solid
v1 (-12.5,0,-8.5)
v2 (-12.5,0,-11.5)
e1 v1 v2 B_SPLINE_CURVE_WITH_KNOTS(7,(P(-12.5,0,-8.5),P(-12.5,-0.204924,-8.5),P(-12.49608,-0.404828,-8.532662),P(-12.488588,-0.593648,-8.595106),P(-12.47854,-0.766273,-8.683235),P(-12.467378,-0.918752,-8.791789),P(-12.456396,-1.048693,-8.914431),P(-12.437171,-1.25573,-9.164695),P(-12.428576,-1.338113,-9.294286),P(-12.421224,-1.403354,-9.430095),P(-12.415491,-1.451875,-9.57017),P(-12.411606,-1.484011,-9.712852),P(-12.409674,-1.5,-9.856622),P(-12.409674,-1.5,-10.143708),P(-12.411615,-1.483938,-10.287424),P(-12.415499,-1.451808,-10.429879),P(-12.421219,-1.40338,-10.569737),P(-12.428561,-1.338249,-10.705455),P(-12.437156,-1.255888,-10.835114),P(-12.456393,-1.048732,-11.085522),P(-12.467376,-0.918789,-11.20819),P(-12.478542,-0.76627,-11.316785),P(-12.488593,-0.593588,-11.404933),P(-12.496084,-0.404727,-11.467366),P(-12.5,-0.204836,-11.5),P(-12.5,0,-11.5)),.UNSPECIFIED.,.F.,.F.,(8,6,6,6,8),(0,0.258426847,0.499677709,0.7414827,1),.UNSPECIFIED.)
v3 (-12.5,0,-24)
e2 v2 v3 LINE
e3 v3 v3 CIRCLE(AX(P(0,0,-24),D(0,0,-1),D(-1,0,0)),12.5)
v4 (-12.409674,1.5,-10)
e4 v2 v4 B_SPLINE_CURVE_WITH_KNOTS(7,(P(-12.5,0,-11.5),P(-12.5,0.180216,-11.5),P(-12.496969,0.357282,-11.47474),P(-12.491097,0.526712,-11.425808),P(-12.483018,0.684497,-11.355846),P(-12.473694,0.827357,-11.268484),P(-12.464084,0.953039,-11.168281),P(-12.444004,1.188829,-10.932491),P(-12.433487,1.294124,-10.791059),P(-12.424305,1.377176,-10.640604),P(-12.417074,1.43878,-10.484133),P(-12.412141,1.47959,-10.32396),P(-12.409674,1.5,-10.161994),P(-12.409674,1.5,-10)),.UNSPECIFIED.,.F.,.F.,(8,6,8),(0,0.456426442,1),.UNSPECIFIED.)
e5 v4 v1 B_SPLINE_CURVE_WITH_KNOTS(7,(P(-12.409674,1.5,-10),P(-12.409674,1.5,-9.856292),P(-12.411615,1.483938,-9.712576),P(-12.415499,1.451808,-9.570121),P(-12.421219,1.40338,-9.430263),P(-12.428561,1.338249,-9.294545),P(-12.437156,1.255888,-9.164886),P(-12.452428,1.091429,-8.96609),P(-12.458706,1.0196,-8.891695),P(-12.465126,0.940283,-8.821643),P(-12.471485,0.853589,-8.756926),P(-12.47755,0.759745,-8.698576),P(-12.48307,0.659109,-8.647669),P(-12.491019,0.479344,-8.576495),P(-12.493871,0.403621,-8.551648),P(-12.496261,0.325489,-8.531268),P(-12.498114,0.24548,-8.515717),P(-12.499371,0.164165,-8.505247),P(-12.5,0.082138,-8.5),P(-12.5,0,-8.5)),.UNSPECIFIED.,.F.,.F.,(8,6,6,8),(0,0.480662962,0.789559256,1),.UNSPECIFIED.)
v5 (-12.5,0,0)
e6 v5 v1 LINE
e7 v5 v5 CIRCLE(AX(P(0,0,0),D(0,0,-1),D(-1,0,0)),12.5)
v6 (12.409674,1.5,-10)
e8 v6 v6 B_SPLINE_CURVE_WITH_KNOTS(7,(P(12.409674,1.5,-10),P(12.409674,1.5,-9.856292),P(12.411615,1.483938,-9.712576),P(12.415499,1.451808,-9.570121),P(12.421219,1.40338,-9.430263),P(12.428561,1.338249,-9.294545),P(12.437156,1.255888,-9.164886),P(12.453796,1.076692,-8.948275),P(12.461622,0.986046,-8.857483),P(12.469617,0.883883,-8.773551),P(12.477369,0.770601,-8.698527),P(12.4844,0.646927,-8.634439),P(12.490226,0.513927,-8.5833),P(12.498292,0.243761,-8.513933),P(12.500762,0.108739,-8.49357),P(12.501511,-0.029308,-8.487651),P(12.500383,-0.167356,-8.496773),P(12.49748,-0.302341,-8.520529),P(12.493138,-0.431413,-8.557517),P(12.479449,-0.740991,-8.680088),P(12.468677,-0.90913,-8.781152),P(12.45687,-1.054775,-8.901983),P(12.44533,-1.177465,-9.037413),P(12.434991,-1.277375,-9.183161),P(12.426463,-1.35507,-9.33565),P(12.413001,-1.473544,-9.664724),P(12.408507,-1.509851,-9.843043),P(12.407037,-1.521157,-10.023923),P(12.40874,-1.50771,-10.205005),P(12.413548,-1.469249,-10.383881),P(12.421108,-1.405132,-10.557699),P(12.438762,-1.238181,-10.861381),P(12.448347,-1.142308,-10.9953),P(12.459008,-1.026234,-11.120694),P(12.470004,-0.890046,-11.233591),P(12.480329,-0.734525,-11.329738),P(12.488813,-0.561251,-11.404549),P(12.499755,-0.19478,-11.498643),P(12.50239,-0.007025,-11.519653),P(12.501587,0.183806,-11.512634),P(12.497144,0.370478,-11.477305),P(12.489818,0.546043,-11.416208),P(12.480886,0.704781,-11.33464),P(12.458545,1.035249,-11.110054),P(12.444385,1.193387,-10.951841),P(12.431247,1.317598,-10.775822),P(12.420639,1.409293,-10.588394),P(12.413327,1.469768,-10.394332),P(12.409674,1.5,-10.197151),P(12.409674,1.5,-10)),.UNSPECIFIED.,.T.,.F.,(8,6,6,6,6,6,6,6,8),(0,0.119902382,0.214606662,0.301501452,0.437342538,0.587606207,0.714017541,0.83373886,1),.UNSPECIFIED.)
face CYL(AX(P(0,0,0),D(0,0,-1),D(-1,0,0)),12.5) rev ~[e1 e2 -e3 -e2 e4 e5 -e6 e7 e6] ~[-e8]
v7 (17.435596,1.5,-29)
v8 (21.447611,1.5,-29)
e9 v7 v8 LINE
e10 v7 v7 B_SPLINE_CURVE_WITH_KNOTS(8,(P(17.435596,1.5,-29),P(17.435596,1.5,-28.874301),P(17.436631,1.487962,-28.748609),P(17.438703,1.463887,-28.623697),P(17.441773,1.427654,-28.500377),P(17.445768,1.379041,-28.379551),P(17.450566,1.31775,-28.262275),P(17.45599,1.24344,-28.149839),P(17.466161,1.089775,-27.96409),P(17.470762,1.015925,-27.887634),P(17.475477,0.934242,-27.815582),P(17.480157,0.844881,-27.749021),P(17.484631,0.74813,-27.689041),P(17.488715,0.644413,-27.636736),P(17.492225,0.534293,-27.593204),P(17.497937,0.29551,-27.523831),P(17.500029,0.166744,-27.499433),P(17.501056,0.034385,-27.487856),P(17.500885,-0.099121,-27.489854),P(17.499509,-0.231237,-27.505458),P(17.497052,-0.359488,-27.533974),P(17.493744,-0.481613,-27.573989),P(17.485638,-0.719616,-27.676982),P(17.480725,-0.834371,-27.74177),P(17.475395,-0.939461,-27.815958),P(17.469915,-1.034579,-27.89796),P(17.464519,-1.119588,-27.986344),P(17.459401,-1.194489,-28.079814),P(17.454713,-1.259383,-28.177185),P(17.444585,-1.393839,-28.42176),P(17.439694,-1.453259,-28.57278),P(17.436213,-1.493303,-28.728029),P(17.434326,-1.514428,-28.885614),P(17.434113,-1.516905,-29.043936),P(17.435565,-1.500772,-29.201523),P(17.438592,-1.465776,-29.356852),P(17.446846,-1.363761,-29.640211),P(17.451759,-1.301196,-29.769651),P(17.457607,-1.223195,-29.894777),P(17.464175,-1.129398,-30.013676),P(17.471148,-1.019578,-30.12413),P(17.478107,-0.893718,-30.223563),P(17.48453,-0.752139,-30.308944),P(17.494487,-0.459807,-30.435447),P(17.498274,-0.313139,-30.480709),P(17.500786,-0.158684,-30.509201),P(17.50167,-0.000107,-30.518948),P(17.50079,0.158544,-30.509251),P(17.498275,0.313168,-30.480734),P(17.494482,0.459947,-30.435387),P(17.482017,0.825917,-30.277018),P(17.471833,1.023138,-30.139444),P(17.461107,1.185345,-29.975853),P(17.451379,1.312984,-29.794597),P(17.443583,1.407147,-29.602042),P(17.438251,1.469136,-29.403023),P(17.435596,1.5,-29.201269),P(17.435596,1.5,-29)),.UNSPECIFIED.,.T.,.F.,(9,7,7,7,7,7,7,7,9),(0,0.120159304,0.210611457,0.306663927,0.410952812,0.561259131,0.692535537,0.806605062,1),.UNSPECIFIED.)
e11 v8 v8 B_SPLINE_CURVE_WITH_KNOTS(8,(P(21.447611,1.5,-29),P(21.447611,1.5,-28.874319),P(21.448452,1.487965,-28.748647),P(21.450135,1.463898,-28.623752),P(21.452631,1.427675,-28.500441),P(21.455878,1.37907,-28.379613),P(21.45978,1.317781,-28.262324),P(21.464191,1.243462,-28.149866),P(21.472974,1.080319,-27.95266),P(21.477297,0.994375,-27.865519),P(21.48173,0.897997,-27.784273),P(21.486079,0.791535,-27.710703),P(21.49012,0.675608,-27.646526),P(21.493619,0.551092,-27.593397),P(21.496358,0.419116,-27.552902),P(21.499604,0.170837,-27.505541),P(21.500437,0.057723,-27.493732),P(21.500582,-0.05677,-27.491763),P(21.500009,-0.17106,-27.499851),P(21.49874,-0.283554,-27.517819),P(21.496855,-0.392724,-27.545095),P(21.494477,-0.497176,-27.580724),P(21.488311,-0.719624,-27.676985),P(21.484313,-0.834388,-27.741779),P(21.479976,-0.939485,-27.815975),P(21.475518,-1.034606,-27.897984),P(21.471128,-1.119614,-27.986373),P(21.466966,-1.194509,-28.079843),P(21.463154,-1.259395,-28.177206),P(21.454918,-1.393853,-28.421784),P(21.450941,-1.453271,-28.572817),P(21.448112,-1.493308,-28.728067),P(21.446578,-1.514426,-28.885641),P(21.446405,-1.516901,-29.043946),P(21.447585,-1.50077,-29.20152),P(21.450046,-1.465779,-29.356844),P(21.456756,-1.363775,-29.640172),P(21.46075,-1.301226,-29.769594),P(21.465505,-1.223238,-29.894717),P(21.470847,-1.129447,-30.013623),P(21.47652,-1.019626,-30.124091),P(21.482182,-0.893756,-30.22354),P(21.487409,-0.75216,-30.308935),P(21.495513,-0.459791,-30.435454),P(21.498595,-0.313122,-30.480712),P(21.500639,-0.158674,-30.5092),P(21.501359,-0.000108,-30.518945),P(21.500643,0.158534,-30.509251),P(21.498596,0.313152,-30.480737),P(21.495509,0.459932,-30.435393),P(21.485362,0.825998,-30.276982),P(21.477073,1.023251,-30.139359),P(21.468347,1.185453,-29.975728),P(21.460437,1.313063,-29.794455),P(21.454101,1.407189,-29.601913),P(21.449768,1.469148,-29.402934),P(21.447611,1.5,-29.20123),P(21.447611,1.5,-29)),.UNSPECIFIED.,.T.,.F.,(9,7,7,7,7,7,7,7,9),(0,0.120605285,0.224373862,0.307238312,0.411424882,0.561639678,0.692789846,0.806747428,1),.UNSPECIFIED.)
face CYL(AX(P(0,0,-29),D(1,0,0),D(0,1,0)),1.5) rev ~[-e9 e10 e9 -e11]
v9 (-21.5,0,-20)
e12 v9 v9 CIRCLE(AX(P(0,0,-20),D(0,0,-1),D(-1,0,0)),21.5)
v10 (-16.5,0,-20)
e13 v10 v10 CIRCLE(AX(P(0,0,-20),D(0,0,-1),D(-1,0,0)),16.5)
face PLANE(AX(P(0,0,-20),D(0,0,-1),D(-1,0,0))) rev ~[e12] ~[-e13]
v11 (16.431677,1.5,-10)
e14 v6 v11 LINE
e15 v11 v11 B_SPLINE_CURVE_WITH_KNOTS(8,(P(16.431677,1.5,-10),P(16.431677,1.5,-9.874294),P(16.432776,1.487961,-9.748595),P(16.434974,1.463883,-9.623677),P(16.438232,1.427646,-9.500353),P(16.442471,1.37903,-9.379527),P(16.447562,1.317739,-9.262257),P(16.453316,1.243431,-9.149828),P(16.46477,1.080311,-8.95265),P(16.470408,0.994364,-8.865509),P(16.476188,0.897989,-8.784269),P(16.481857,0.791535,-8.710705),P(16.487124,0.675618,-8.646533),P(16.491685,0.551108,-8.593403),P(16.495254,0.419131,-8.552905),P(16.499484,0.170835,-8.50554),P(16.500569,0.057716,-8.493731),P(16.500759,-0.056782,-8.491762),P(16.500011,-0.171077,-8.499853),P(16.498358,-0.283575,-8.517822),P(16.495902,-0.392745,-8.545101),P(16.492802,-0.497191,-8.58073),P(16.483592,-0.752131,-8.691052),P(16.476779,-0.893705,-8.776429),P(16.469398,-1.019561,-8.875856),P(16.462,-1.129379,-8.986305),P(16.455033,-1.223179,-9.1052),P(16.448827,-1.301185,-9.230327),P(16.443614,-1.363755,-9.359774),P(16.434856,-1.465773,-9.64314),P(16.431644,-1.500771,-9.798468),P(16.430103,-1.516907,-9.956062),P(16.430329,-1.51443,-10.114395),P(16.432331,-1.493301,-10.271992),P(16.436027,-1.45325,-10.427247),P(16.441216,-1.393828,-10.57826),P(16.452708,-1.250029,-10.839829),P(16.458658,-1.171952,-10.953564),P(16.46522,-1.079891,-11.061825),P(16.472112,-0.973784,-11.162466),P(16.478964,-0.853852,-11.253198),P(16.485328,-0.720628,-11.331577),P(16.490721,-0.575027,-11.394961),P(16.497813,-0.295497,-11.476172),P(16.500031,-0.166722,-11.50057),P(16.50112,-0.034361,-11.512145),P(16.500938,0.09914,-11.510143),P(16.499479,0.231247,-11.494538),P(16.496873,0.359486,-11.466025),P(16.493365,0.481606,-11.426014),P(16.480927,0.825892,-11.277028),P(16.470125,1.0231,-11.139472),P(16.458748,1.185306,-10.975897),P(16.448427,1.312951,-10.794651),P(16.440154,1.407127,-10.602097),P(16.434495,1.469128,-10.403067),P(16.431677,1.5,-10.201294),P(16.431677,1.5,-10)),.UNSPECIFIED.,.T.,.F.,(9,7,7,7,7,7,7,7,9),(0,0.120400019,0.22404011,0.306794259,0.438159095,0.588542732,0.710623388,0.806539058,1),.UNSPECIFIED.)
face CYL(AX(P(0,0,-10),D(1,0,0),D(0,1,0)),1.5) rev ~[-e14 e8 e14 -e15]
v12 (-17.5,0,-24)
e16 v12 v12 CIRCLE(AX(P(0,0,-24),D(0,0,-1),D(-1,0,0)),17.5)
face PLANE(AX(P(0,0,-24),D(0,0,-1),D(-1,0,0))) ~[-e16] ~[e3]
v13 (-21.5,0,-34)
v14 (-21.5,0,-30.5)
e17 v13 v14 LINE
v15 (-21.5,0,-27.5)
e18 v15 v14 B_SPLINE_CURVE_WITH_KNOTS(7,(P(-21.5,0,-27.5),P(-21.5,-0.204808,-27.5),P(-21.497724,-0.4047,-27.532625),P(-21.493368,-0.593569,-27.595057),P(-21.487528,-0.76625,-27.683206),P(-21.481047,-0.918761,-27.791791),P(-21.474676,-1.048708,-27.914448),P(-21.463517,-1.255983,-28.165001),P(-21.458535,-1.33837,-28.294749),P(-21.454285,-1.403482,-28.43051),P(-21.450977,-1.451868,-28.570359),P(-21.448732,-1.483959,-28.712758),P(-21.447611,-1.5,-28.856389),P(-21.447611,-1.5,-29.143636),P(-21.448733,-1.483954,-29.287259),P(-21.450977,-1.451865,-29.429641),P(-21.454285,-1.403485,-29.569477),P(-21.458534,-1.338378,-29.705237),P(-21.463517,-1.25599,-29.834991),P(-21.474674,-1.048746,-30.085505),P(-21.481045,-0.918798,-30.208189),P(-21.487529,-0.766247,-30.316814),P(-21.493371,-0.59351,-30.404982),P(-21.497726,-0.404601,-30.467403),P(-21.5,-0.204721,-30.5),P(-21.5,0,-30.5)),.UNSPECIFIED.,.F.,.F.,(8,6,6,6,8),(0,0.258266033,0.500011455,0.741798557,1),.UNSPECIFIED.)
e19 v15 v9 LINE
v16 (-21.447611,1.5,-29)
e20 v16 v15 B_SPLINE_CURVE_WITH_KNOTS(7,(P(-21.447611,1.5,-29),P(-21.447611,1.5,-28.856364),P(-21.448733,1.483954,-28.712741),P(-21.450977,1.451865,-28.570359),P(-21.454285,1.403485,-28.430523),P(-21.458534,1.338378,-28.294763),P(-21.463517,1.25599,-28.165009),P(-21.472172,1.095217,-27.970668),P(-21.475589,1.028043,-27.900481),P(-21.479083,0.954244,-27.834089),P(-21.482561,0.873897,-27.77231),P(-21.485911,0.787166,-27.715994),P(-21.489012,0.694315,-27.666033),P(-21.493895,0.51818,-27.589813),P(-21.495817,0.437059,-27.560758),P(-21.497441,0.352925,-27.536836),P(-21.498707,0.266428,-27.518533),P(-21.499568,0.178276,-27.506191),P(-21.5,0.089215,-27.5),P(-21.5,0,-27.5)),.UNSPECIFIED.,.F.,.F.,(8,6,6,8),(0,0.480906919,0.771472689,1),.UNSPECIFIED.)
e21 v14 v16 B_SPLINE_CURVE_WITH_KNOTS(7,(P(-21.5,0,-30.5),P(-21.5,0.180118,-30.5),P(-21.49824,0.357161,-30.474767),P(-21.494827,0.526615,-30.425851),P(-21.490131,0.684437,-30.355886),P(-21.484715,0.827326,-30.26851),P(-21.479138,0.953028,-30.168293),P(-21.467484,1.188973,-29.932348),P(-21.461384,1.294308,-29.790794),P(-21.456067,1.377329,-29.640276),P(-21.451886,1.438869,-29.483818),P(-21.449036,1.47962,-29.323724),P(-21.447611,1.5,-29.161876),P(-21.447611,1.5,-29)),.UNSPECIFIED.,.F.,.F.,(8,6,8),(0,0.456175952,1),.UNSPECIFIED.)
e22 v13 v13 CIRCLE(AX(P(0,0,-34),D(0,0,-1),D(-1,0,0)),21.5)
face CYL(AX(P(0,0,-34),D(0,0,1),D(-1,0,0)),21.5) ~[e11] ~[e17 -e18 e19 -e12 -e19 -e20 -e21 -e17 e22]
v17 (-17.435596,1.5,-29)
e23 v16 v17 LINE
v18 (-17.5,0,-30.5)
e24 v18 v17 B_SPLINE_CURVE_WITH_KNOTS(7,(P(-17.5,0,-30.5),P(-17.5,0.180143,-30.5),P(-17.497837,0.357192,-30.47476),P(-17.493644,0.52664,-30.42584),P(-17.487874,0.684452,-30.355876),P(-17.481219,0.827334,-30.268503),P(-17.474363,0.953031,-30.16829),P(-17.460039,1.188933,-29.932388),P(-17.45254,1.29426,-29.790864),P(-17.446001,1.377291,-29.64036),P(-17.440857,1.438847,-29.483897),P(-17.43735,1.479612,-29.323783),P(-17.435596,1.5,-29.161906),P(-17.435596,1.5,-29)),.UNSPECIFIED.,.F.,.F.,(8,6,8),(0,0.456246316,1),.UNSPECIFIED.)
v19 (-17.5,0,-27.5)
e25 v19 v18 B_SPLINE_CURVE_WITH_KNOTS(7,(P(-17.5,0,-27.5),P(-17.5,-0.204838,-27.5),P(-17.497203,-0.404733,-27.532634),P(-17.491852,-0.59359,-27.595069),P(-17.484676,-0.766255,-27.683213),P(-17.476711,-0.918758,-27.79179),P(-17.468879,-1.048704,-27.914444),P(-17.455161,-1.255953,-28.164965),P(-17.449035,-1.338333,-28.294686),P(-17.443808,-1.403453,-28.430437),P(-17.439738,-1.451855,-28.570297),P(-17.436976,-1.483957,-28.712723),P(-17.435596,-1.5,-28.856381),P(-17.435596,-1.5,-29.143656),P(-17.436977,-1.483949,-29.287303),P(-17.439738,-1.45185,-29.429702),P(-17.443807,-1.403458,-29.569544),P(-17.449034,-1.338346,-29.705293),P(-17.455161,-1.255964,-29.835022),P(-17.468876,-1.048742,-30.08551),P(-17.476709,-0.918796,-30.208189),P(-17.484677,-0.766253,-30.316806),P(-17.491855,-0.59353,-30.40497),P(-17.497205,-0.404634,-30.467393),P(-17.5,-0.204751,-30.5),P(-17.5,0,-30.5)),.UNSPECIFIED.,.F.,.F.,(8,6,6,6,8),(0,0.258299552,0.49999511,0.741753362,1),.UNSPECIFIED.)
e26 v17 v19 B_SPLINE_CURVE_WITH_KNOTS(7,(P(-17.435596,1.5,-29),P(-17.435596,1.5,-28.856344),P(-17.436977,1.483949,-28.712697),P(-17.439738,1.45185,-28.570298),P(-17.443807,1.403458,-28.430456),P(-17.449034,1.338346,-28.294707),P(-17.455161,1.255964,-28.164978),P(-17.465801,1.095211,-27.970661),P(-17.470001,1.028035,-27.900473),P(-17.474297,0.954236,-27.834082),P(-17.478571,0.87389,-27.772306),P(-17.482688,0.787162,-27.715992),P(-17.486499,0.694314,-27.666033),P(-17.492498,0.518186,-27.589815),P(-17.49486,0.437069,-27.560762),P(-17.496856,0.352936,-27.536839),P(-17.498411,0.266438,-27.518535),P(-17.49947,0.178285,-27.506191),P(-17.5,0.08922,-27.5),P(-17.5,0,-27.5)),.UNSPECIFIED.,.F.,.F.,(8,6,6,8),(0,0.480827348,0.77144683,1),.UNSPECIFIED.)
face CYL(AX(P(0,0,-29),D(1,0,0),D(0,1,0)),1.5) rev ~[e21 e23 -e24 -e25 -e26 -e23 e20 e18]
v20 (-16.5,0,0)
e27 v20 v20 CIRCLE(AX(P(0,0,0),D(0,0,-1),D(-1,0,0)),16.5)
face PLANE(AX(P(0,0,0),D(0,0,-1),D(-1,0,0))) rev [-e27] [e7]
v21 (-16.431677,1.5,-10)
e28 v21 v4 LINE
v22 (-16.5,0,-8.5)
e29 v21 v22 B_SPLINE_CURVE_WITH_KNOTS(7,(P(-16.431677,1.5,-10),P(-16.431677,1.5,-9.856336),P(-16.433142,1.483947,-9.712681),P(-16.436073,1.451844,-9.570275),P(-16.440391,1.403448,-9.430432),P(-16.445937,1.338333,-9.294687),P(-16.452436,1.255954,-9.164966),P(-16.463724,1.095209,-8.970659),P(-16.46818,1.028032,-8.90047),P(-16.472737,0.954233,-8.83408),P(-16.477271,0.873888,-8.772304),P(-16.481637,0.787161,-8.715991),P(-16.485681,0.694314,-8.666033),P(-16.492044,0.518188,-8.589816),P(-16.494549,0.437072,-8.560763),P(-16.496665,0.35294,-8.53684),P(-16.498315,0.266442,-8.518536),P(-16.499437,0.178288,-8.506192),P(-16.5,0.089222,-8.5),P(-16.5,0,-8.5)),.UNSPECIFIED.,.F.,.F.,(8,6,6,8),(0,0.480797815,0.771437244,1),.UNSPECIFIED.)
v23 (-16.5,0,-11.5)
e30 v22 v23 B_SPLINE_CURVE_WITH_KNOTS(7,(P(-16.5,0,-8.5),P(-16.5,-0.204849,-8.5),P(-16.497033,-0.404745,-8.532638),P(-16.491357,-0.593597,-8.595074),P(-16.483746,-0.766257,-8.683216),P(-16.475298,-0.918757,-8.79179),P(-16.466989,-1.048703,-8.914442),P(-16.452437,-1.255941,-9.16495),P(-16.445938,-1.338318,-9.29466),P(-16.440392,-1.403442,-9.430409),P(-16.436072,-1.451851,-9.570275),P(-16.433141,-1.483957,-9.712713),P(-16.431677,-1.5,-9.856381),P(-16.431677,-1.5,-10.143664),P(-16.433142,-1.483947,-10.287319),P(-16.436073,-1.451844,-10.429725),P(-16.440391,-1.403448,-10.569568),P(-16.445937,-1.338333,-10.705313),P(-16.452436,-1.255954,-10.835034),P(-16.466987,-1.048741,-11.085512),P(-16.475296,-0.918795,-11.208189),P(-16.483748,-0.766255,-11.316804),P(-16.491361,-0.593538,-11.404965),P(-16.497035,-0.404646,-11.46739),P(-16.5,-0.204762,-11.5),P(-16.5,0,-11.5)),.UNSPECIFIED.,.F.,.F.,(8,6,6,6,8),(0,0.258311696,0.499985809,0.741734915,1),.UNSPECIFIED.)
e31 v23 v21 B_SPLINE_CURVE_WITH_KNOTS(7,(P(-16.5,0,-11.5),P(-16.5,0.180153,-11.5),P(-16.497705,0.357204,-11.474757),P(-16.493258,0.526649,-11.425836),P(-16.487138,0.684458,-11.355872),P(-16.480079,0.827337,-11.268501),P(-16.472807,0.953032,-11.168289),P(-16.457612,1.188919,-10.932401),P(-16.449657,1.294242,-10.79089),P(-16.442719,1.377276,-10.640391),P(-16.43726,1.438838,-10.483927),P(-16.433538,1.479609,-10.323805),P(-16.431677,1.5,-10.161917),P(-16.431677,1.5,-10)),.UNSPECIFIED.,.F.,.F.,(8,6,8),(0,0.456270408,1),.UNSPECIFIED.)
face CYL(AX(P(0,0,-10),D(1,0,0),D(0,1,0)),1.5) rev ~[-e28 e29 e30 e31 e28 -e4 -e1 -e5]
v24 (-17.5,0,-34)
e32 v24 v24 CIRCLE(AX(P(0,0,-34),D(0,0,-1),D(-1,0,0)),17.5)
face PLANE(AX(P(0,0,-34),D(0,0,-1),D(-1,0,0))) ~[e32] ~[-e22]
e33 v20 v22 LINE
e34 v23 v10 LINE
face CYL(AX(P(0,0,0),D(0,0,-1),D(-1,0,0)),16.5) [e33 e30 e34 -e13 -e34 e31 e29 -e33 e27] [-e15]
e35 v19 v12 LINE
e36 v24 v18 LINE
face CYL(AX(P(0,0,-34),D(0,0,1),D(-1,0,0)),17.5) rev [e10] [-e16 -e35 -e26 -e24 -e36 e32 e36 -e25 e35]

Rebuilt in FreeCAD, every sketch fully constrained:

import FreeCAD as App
import Part
import Sketcher
Q = App.Units.Quantity


def add_polygon(sketch, points):
    """Adds a closed chain of lines whose ends are joined by coincident constraints."""
    first, n = sketch.GeometryCount, len(points)
    for a, b in zip(points, points[1:] + points[:1]):
        sketch.addGeometry(Part.LineSegment(App.Vector(*a, 0), App.Vector(*b, 0)), False)
    for i in range(n):
        sketch.addConstraint(Sketcher.Constraint("Coincident", first + i, 2, first + (i + 1) % n, 1))

doc = App.newDocument("Part")
body = doc.addObject("PartDesign::Body", "Body")

sketch1 = doc.addObject("Sketcher::SketchObject", "Sketch")
body.addObject(sketch1)
sketch1.AttachmentSupport = (doc.XZ_Plane, [""])
sketch1.MapMode = "FlatFace"
add_polygon(sketch1, [(-16.5, 0), (-12.5, 0), (-12.5, -24), (-17.5, -24), (-17.5, -34), (-21.5, -34), (-21.5, -20), (-16.5, -20)])
sketch1.addConstraint(Sketcher.Constraint("Horizontal", 0))
sketch1.addConstraint(Sketcher.Constraint("Vertical", 1))
sketch1.addConstraint(Sketcher.Constraint("Horizontal", 2))
sketch1.addConstraint(Sketcher.Constraint("Vertical", 3))
sketch1.addConstraint(Sketcher.Constraint("Horizontal", 4))
sketch1.addConstraint(Sketcher.Constraint("Vertical", 5))
sketch1.addConstraint(Sketcher.Constraint("Horizontal", 6))
sketch1.addConstraint(Sketcher.Constraint("Vertical", 7))
sketch1.addConstraint(Sketcher.Constraint("PointOnObject", 0, 2, -1))
sketch1.addConstraint(Sketcher.Constraint("Equal", 0, 4))
sketch1.addConstraint(Sketcher.Constraint("DistanceX", 0, 1, 0, 2, Q("4 mm")))
sketch1.addConstraint(Sketcher.Constraint("DistanceY", 1, 2, 1, 1, Q("24 mm")))
sketch1.addConstraint(Sketcher.Constraint("DistanceY", 3, 2, 3, 1, Q("10 mm")))
sketch1.addConstraint(Sketcher.Constraint("DistanceY", 5, 1, 5, 2, Q("14 mm")))
sketch1.addConstraint(Sketcher.Constraint("DistanceX", 0, 2, -1, 1, Q("12.5 mm")))
sketch1.addConstraint(Sketcher.Constraint("DistanceX", 2, 2, -1, 1, Q("17.5 mm")))
revolution = doc.addObject("PartDesign::Revolution", "Revolution")
body.addObject(revolution)
revolution.Profile = sketch1
revolution.ReferenceAxis = (sketch1, ["V_Axis"])
revolution.Angle = 360

sketch2 = doc.addObject("Sketcher::SketchObject", "Sketch001")
body.addObject(sketch2)
sketch2.AttachmentSupport = (doc.YZ_Plane, [""])
sketch2.MapMode = "FlatFace"
sketch2.addGeometry(Part.Circle(App.Vector(0, -29, 0), App.Vector(0, 0, 1), 1.5), False)
sketch2.addGeometry(Part.Circle(App.Vector(0, -10, 0), App.Vector(0, 0, 1), 1.5), False)
sketch2.addConstraint(Sketcher.Constraint("Equal", 0, 1))
sketch2.addConstraint(Sketcher.Constraint("PointOnObject", 0, 3, -2))
sketch2.addConstraint(Sketcher.Constraint("PointOnObject", 1, 3, -2))
sketch2.addConstraint(Sketcher.Constraint("Diameter", 0, Q("3 mm")))
sketch2.addConstraint(Sketcher.Constraint("DistanceY", 1, 3, -1, 1, Q("10 mm")))
sketch2.addConstraint(Sketcher.Constraint("DistanceY", 0, 3, -1, 1, Q("29 mm")))
pocket1 = doc.addObject("PartDesign::Pocket", "Pocket")
body.addObject(pocket1)
pocket1.Profile = sketch2
pocket1.Type = "ThroughAll"
pocket1.Midplane = True

doc.recompute()
